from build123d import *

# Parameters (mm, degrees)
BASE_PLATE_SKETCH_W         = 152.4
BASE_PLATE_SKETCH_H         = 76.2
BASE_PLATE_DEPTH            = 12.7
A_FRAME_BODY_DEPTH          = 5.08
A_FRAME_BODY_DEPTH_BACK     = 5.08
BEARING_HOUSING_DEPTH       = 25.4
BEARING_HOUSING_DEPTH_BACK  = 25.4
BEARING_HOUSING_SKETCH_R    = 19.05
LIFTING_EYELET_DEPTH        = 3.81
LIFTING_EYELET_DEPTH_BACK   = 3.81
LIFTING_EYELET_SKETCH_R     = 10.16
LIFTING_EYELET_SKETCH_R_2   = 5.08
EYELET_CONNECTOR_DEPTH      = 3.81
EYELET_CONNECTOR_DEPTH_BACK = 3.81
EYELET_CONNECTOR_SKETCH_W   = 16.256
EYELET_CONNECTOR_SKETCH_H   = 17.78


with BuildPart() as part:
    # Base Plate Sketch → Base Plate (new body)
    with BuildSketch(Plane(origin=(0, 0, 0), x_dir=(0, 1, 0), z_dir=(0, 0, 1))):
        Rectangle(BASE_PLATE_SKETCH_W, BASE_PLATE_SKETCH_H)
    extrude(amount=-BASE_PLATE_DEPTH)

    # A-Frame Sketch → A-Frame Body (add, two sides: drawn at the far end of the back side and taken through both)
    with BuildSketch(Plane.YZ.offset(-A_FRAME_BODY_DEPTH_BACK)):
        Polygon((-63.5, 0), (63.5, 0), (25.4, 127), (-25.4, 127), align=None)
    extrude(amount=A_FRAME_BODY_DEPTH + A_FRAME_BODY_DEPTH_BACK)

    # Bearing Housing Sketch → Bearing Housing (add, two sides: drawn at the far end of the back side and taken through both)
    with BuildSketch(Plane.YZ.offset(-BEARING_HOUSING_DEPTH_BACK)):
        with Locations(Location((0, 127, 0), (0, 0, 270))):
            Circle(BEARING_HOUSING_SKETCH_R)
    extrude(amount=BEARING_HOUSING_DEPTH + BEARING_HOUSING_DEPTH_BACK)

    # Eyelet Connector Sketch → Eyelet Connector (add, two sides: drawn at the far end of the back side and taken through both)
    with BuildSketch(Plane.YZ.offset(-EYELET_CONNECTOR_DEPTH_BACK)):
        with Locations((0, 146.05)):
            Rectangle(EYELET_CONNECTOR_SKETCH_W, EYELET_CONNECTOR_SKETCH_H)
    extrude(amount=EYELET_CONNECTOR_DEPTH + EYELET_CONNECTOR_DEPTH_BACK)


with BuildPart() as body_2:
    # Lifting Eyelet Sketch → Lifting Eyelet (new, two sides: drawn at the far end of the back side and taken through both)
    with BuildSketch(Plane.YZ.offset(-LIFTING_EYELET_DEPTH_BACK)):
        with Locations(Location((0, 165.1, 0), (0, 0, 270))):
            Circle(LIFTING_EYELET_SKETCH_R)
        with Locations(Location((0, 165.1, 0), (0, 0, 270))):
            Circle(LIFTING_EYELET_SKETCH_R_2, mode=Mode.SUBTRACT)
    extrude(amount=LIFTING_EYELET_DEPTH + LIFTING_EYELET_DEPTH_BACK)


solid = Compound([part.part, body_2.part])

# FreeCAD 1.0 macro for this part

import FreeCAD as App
import Part
import Sketcher

V = App.Vector
Q = App.Units.Quantity


def add_polygon(sketch, points):
    """Adds a closed chain of lines whose ends are joined by coincident constraints."""
    first, n = sketch.GeometryCount, len(points)
    for a, b in zip(points, points[1:] + points[:1]):
        sketch.addGeometry(Part.LineSegment(App.Vector(*a, 0), App.Vector(*b, 0)), False)
    for i in range(n):
        sketch.addConstraint(Sketcher.Constraint("Coincident", first + i, 2, first + (i + 1) % n, 1))

doc = App.newDocument("Part")
body = doc.addObject("PartDesign::Body", "Body")

# Sketch on XY plane
sketch1 = doc.addObject("Sketcher::SketchObject", "Sketch")
body.addObject(sketch1)
sketch1.AttachmentSupport = (doc.XY_Plane, [""])
sketch1.MapMode = "FlatFace"
add_polygon(sketch1, [(-38, -76), (38, -76), (38, 76), (-38, 76)])  # lines 0-3
sketch1.addConstraint([
    Sketcher.Constraint("Horizontal", 0),
    Sketcher.Constraint("Vertical", 1),
    Sketcher.Constraint("Horizontal", 2),
    Sketcher.Constraint("Vertical", 3),
    Sketcher.Constraint("Symmetric", 0, 2, 2, 2, -1, 1),
    Sketcher.Constraint("DistanceX", 0, 1, 0, 2, Q("3 in")),
    Sketcher.Constraint("DistanceY", 1, 1, 1, 2, Q("6 in")),
])
pad1 = doc.addObject("PartDesign::Pad", "Pad")
body.addObject(pad1)
pad1.Profile = sketch1
pad1.Length = Q("0.5 in")
pad1.Reversed = True

# Sketch on YZ plane
sketch2 = doc.addObject("Sketcher::SketchObject", "Sketch001")
body.addObject(sketch2)
sketch2.AttachmentSupport = (doc.YZ_Plane, [""])
sketch2.MapMode = "FlatFace"
add_polygon(sketch2, [(-64, 0), (64, 0), (25, 127), (-25, 127)])  # lines 0-3
sketch2.addConstraint([
    Sketcher.Constraint("Horizontal", 0),
    Sketcher.Constraint("Horizontal", 2),
    Sketcher.Constraint("Symmetric", 0, 2, 3, 2, -1, 1),
    Sketcher.Constraint("Equal", 1, 3),
    Sketcher.Constraint("DistanceX", 0, 1, 0, 2, Q("5 in")),
    Sketcher.Constraint("DistanceX", 2, 2, 2, 1, Q("2 in")),
    Sketcher.Constraint("DistanceY", -1, 1, 1, 2, Q("5 in")),
])
pad2 = doc.addObject("PartDesign::Pad", "Pad001")
body.addObject(pad2)
pad2.Profile = sketch2
pad2.Type = "TwoLengths"
pad2.Length = Q("0.2 in")
pad2.Length2 = Q("0.2 in")

# Sketch on YZ plane
sketch3 = doc.addObject("Sketcher::SketchObject", "Sketch002")
body.addObject(sketch3)
sketch3.AttachmentSupport = (doc.YZ_Plane, [""])
sketch3.MapMode = "FlatFace"
sketch3.addGeometry(Part.Circle(V(0, 127, 0), V(0, 0, 1), 19), False)
sketch3.addConstraint([
    Sketcher.Constraint("PointOnObject", 0, 3, -2),
    Sketcher.Constraint("Diameter", 0, Q("1.5 in")),
    Sketcher.Constraint("DistanceY", -1, 1, 0, 3, Q("5 in")),
])
pad3 = doc.addObject("PartDesign::Pad", "Pad002")
body.addObject(pad3)
pad3.Profile = sketch3
pad3.Type = "TwoLengths"
pad3.Length = Q("1 in")
pad3.Length2 = Q("1 in")

# Sketch on YZ plane
sketch4 = doc.addObject("Sketcher::SketchObject", "Sketch003")
body.addObject(sketch4)
sketch4.AttachmentSupport = (doc.YZ_Plane, [""])
sketch4.MapMode = "FlatFace"
add_polygon(sketch4, [(-8, 155), (-8, 137), (8, 137), (8, 155)])  # lines 0-3
sketch4.addConstraint([
    Sketcher.Constraint("Vertical", 0),
    Sketcher.Constraint("Horizontal", 1),
    Sketcher.Constraint("Vertical", 2),
    Sketcher.Constraint("Horizontal", 3),
    Sketcher.Constraint("DistanceY", 0, 2, 0, 1, Q("0.7 in")),
    Sketcher.Constraint("DistanceX", 1, 1, 1, 2, Q("0.64 in")),
    Sketcher.Constraint("DistanceY", -1, 1, 0, 2, Q("5.4 in")),
    Sketcher.Constraint("DistanceX", 0, 2, -1, 1, Q("0.32 in")),
])
pad4 = doc.addObject("PartDesign::Pad", "Pad003")
body.addObject(pad4)
pad4.Profile = sketch4
pad4.Type = "TwoLengths"
pad4.Length = Q("0.15 in")
pad4.Length2 = Q("0.15 in")
body2 = doc.addObject("PartDesign::Body", "Body001")

# Sketch on YZ plane
sketch5 = doc.addObject("Sketcher::SketchObject", "Sketch004")
body2.addObject(sketch5)
sketch5.AttachmentSupport = (doc.getObject("YZ_Plane001"), [""])
sketch5.MapMode = "FlatFace"
sketch5.addGeometry([
    Part.Circle(V(0, 165, 0), V(0, 0, 1), 10),
    Part.Circle(V(0, 165, 0), V(0, 0, 1), 5),
], False)
sketch5.addConstraint([
    Sketcher.Constraint("Coincident", 1, 3, 0, 3),
    Sketcher.Constraint("PointOnObject", 0, 3, -2),
    Sketcher.Constraint("Diameter", 0, Q("0.8 in")),
    Sketcher.Constraint("Diameter", 1, Q("0.4 in")),
    Sketcher.Constraint("DistanceY", -1, 1, 0, 3, Q("6.5 in")),
])
pad5 = doc.addObject("PartDesign::Pad", "Pad004")
body2.addObject(pad5)
pad5.Profile = sketch5
pad5.Type = "TwoLengths"
pad5.Length = Q("0.15 in")
pad5.Length2 = Q("0.15 in")

doc.recompute()
